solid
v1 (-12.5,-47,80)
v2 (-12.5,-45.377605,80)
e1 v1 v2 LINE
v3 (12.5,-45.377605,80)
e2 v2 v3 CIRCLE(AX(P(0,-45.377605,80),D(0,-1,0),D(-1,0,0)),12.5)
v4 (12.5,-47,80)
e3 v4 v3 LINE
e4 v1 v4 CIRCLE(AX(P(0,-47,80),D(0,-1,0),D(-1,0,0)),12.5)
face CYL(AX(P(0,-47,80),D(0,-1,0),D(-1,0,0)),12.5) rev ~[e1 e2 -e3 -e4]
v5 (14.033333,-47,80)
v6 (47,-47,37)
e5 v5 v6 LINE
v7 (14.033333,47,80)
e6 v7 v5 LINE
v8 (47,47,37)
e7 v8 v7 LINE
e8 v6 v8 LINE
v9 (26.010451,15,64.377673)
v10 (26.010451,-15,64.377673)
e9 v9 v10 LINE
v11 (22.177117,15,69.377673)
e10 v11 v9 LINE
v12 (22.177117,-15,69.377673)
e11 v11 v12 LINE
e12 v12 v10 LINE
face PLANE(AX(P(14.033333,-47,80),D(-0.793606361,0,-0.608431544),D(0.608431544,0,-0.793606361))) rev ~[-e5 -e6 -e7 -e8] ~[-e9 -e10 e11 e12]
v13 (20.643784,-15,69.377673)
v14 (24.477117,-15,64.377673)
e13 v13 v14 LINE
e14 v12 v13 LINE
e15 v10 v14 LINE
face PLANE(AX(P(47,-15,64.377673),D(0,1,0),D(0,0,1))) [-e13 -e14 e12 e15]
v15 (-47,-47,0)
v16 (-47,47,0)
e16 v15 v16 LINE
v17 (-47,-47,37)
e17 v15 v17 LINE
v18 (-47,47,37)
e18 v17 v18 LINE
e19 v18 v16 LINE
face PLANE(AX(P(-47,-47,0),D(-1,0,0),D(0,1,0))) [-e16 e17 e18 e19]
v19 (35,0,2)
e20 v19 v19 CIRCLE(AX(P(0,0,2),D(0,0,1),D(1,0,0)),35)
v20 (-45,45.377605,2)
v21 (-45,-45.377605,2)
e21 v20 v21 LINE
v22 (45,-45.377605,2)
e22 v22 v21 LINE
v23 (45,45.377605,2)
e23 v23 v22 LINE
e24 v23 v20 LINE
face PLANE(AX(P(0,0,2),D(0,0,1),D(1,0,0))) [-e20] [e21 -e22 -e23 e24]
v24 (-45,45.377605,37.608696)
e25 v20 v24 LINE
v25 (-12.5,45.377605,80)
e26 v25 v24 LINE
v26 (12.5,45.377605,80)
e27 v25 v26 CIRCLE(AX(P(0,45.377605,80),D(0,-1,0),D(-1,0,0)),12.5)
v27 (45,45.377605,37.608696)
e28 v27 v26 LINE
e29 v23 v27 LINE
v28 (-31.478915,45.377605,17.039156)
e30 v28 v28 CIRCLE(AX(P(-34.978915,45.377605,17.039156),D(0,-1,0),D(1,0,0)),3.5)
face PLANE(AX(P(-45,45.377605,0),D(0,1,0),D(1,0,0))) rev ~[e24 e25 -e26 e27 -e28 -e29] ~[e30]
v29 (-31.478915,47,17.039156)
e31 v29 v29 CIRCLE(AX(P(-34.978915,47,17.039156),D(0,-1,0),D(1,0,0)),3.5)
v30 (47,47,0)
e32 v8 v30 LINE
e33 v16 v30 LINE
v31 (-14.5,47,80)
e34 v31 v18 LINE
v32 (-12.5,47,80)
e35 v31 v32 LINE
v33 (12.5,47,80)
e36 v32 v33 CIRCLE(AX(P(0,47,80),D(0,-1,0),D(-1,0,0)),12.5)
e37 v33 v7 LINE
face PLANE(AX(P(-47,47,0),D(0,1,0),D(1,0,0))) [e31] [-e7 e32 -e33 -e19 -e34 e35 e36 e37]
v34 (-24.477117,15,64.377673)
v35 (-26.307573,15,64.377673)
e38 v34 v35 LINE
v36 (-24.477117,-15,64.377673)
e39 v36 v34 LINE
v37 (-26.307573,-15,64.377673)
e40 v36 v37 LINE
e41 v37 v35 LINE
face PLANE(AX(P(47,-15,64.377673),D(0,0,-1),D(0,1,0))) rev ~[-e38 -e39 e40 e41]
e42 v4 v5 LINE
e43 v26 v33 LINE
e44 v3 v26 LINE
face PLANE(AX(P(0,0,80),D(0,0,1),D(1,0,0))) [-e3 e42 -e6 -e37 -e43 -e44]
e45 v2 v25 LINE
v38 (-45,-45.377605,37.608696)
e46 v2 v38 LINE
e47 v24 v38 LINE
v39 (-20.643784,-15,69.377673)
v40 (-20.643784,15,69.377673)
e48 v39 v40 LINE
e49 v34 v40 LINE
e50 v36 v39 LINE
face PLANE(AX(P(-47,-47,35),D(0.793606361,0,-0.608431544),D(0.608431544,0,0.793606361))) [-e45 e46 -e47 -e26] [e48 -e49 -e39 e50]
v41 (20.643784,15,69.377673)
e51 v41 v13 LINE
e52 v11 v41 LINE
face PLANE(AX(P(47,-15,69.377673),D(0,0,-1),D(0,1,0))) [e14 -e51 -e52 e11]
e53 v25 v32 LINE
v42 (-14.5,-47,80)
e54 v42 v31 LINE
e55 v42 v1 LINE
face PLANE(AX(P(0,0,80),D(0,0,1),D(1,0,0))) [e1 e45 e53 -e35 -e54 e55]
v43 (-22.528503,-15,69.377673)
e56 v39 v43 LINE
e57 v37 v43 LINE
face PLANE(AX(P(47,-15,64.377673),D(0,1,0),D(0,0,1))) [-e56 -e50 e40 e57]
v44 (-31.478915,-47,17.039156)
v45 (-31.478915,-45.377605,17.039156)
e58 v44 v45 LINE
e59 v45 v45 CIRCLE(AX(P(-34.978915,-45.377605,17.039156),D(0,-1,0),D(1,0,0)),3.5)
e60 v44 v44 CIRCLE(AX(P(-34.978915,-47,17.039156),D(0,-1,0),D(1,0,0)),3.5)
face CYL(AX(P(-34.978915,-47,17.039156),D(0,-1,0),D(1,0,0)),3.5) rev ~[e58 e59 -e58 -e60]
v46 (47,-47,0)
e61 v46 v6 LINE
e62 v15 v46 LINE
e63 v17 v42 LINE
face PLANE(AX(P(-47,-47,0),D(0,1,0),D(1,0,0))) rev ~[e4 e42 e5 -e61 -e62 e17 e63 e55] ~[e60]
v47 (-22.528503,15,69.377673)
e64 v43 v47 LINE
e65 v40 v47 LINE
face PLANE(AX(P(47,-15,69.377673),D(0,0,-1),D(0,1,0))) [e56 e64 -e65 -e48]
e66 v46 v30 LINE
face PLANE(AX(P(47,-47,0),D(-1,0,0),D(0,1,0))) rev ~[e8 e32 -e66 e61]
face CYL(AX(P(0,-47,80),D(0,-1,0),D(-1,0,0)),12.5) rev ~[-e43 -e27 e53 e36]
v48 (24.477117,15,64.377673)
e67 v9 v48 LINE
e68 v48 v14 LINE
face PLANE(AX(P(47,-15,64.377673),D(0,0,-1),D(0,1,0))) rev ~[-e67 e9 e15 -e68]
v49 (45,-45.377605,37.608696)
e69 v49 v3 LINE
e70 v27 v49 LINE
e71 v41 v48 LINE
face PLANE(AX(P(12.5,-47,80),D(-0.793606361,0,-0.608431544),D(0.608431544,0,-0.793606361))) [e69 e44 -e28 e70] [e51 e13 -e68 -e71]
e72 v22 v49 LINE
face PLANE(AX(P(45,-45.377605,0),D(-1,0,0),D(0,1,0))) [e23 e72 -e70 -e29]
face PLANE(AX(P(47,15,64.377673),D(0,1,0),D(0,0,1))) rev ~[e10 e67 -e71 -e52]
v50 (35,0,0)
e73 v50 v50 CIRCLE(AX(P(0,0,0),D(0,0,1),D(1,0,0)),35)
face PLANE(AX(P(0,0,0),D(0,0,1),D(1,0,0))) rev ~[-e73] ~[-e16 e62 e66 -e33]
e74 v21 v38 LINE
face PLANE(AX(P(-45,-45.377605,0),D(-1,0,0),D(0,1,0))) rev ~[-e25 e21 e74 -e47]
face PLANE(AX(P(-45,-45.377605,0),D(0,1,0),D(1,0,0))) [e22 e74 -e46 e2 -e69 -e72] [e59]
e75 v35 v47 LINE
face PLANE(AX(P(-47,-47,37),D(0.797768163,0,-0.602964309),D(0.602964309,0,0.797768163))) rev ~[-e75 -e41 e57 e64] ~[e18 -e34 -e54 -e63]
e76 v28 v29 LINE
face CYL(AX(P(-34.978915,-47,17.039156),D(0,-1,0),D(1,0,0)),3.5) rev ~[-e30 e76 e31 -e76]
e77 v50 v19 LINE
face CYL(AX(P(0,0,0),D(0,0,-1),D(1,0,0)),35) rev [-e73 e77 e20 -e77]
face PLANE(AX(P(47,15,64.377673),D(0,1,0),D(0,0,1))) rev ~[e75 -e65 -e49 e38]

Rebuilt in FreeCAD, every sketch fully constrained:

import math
import FreeCAD as App
import Part
import Sketcher


def add_polygon(sketch, points):
    """Adds a closed chain of lines whose ends are joined by coincident constraints."""
    first, n = sketch.GeometryCount, len(points)
    for a, b in zip(points, points[1:] + points[:1]):
        sketch.addGeometry(Part.LineSegment(App.Vector(*a, 0), App.Vector(*b, 0)), False)
    for i in range(n):
        sketch.addConstraint(Sketcher.Constraint("Coincident", first + i, 2, first + (i + 1) % n, 1))

doc = App.newDocument("Part")
params = doc.addObject("Spreadsheet::Sheet", "Params")
for row, (alias, value) in enumerate([
    ("sketch1_diameter", "70 mm"),
    ("sketch1_width", "94 mm"),
    ("pad1_length", "2 mm"),
    ("sketch2_width", "94 mm"),
    ("sketch2_width2", "90 mm"),
    ("pad2_length", "80 mm"),
    ("sketch3_diameter", "7 mm"),
    ("sketch3_radius", "12.5 mm"),
    ("pocket1_length", "100 mm"),
    ("sketch4_height", "43 mm"),
    ("sketch4_width", "32.5 mm"),
    ("pocket2_length", "150 mm"),
    ("sketch5_width", "2 mm"),
    ("pad3_length", "94 mm"),
    ("sketch6_width", "30 mm"),
    ("sketch6_height", "5 mm"),
    ("pocket3_length", "100 mm"),
], start=1):
    params.set(f"A{row}", alias)
    params.set(f"B{row}", "=" + value)
    params.setAlias(f"B{row}", alias)

body = doc.addObject("PartDesign::Body", "Body")

# Sketch on XY plane
sketch1 = body.newObject("Sketcher::SketchObject", "Sketch")
sketch1.AttachmentSupport = (doc.getObject("XY_Plane"), [""])
sketch1.MapMode = "FlatFace"
add_polygon(sketch1, [(-47, 47), (-47, -47), (47, -47), (47, 47)])  # lines 0-3
sketch1.addGeometry(Part.Circle(App.Vector(0, 0, 0), App.Vector(0, 0, 1), 35), False)  # 4
sketch1.addConstraint([
    Sketcher.Constraint("Vertical", 0),
    Sketcher.Constraint("Horizontal", 1),
    Sketcher.Constraint("Vertical", 2),
    Sketcher.Constraint("Horizontal", 3),
    Sketcher.Constraint("Coincident", 4, 3, -1, 1),
    Sketcher.Constraint("Symmetric", 0, 2, 2, 2, -1, 1),
    Sketcher.Constraint("Equal", 3, 0),
    Sketcher.Constraint("Diameter", 4, 70.0),
    Sketcher.Constraint("DistanceX", 1, 1, 1, 2, 94.0),
])
sketch1.setExpression("Constraints[11]", "Params.sketch1_diameter")
sketch1.setExpression("Constraints[12]", "Params.sketch1_width")
pad1 = body.newObject("PartDesign::Pad", "Pad")
pad1.Profile = sketch1
pad1.setExpression("Length", "Params.pad1_length")

# Sketch on XY plane
sketch2 = body.newObject("Sketcher::SketchObject", "Sketch001")
sketch2.AttachmentSupport = (doc.getObject("XY_Plane"), [""])
sketch2.MapMode = "FlatFace"
add_polygon(sketch2, [(-47, 47), (-47, -47), (47, -47), (47, 47)])  # lines 0-3
add_polygon(sketch2, [(45, -45), (-45, -45), (-45, 45), (45, 45)])  # lines 4-7
sketch2.addConstraint([
    Sketcher.Constraint("Vertical", 0),
    Sketcher.Constraint("Horizontal", 1),
    Sketcher.Constraint("Vertical", 2),
    Sketcher.Constraint("Horizontal", 3),
    Sketcher.Constraint("Horizontal", 4),
    Sketcher.Constraint("Vertical", 5),
    Sketcher.Constraint("Horizontal", 6),
    Sketcher.Constraint("Vertical", 7),
    Sketcher.Constraint("Symmetric", 0, 2, 2, 2, -1, 1),
    Sketcher.Constraint("Symmetric", 4, 2, 6, 2, -1, 1),
    Sketcher.Constraint("Equal", 3, 0),
    Sketcher.Constraint("DistanceX", 1, 1, 1, 2, 94.0),
    Sketcher.Constraint("DistanceX", 4, 2, 4, 1, 90.0),
    Sketcher.Constraint("DistanceY", 5, 1, 5, 2, 90.755209),
])
sketch2.setExpression("Constraints[19]", "Params.sketch2_width")
sketch2.setExpression("Constraints[20]", "Params.sketch2_width2")
pad2 = body.newObject("PartDesign::Pad", "Pad001")
pad2.Profile = sketch2
pad2.setExpression("Length", "Params.pad2_length")

# Sketch on XZ plane
sketch3 = body.newObject("Sketcher::SketchObject", "Sketch002")
sketch3.AttachmentSupport = (doc.getObject("XZ_Plane"), [""])
sketch3.MapMode = "FlatFace"
sketch3.AttachmentOffset = App.Placement(App.Vector(0, 0, 47), App.Rotation())
sketch3.addGeometry([
    Part.ArcOfCircle(Part.Circle(App.Vector(0, 80, 0), App.Vector(0, 0, 1), 12.5), math.radians(180), math.radians(360)),
    Part.LineSegment(App.Vector(12.5, 80, 0), App.Vector(-12.5, 80, 0)),
    Part.Circle(App.Vector(-35, 17, 0), App.Vector(0, 0, 1), 3.5),
], False)
sketch3.addConstraint([
    Sketcher.Constraint("Coincident", 0, 1, 1, 2),
    Sketcher.Constraint("Coincident", 1, 1, 0, 2),
    Sketcher.Constraint("Horizontal", 1),
    Sketcher.Constraint("PointOnObject", 0, 3, -2),
    Sketcher.Constraint("Diameter", 2, 7.0),
    Sketcher.Constraint("Radius", 0, 12.5),
    Sketcher.Constraint("DistanceY", -1, 1, 0, 3, 80.0),
    Sketcher.Constraint("DistanceY", -1, 1, 0, 1, 80.0),
    Sketcher.Constraint("DistanceX", 2, 3, -1, 1, 34.978915),
    Sketcher.Constraint("DistanceY", -1, 1, 2, 3, 17.039156),
])
sketch3.setExpression("Constraints[4]", "Params.sketch3_diameter")
sketch3.setExpression("Constraints[5]", "Params.sketch3_radius")
pocket1 = body.newObject("PartDesign::Pocket", "Pocket")
pocket1.Profile = sketch3
pocket1.setExpression("Length", "Params.pocket1_length")

# Sketch on XZ plane
sketch4 = body.newObject("Sketcher::SketchObject", "Sketch003")
sketch4.AttachmentSupport = (doc.getObject("XZ_Plane"), [""])
sketch4.MapMode = "FlatFace"
sketch4.AttachmentOffset = App.Placement(App.Vector(0, 0, 47), App.Rotation())
add_polygon(sketch4, [(-47, 37), (-14, 80), (-47, 80)])  # lines 0-2
add_polygon(sketch4, [(47, 80), (14, 80), (47, 37)])  # lines 3-5
sketch4.addConstraint([
    Sketcher.Constraint("Horizontal", 1),
    Sketcher.Constraint("Vertical", 2),
    Sketcher.Constraint("Horizontal", 3),
    Sketcher.Constraint("Vertical", 5),
    Sketcher.Constraint("Symmetric", 2, 2, 4, 2, -2),
    Sketcher.Constraint("Horizontal", 1, 2, 3, 2),
    Sketcher.Constraint("DistanceY", 2, 2, 2, 1, 43.0),
    Sketcher.Constraint("DistanceX", 1, 2, 1, 1, 32.5),
    Sketcher.Constraint("DistanceY", -1, 1, 0, 2, 80.0),
    Sketcher.Constraint("DistanceX", 1, 2, -1, 1, 47.0),
    Sketcher.Constraint("DistanceX", 3, 2, 3, 1, 32.966667),
])
sketch4.setExpression("Constraints[12]", "Params.sketch4_height")
sketch4.setExpression("Constraints[13]", "Params.sketch4_width")
pocket2 = body.newObject("PartDesign::Pocket", "Pocket001")
pocket2.Profile = sketch4
pocket2.setExpression("Length", "Params.pocket2_length")

# Sketch on XZ plane
sketch5 = body.newObject("Sketcher::SketchObject", "Sketch004")
sketch5.AttachmentSupport = (doc.getObject("XZ_Plane"), [""])
sketch5.MapMode = "FlatFace"
sketch5.AttachmentOffset = App.Placement(App.Vector(0, 0, 47), App.Rotation())
add_polygon(sketch5, [(-47, 35), (-12.5, 80), (-14.5, 80), (-47, 37)])  # lines 0-3
add_polygon(sketch5, [(14, 80), (12.5, 80), (47, 35), (47, 37)])  # lines 4-7
sketch5.addConstraint([
    Sketcher.Constraint("Horizontal", 1),
    Sketcher.Constraint("Vertical", 3),
    Sketcher.Constraint("Horizontal", 4),
    Sketcher.Constraint("Vertical", 6),
    Sketcher.Constraint("Symmetric", 0, 2, 4, 2, -2),
    Sketcher.Constraint("Symmetric", 3, 2, 5, 2, -2),
    Sketcher.Constraint("Parallel", 5, 7),
    Sketcher.Constraint("Horizontal", 2, 2, 6, 2),
    Sketcher.Constraint("Equal", 1, 3),
    Sketcher.Constraint("DistanceX", 1, 2, 1, 1, 2.0),
    Sketcher.Constraint("DistanceY", -1, 1, 0, 2, 80.0),
    Sketcher.Constraint("DistanceX", 2, 2, -1, 1, 47.0),
    Sketcher.Constraint("DistanceY", -1, 1, 2, 2, 37.0),
    Sketcher.Constraint("DistanceX", 0, 2, 4, 2, 25.0),
])
sketch5.setExpression("Constraints[17]", "Params.sketch5_width")
pad3 = body.newObject("PartDesign::Pad", "Pad002")
pad3.Profile = sketch5
pad3.setExpression("Length", "Params.pad3_length")
pad3.Reversed = True

# Sketch on YZ plane
sketch6 = body.newObject("Sketcher::SketchObject", "Sketch005")
sketch6.AttachmentSupport = (doc.getObject("YZ_Plane"), [""])
sketch6.MapMode = "FlatFace"
sketch6.AttachmentOffset = App.Placement(App.Vector(0, 0, 47), App.Rotation())
add_polygon(sketch6, [(-15, 69), (-15, 64), (15, 64), (15, 69)])  # lines 0-3
sketch6.addConstraint([
    Sketcher.Constraint("Vertical", 0),
    Sketcher.Constraint("Horizontal", 1),
    Sketcher.Constraint("Vertical", 2),
    Sketcher.Constraint("Horizontal", 3),
    Sketcher.Constraint("DistanceX", 1, 1, 1, 2, 30.0),
    Sketcher.Constraint("DistanceY", 0, 2, 0, 1, 5.0),
    Sketcher.Constraint("DistanceX", 0, 2, -1, 1, 15.0),
    Sketcher.Constraint("DistanceY", -1, 1, 0, 2, 64.377673),
])
sketch6.setExpression("Constraints[8]", "Params.sketch6_width")
sketch6.setExpression("Constraints[9]", "Params.sketch6_height")
pocket3 = body.newObject("PartDesign::Pocket", "Pocket002")
pocket3.Profile = sketch6
pocket3.setExpression("Length", "Params.pocket3_length")

doc.recompute()
